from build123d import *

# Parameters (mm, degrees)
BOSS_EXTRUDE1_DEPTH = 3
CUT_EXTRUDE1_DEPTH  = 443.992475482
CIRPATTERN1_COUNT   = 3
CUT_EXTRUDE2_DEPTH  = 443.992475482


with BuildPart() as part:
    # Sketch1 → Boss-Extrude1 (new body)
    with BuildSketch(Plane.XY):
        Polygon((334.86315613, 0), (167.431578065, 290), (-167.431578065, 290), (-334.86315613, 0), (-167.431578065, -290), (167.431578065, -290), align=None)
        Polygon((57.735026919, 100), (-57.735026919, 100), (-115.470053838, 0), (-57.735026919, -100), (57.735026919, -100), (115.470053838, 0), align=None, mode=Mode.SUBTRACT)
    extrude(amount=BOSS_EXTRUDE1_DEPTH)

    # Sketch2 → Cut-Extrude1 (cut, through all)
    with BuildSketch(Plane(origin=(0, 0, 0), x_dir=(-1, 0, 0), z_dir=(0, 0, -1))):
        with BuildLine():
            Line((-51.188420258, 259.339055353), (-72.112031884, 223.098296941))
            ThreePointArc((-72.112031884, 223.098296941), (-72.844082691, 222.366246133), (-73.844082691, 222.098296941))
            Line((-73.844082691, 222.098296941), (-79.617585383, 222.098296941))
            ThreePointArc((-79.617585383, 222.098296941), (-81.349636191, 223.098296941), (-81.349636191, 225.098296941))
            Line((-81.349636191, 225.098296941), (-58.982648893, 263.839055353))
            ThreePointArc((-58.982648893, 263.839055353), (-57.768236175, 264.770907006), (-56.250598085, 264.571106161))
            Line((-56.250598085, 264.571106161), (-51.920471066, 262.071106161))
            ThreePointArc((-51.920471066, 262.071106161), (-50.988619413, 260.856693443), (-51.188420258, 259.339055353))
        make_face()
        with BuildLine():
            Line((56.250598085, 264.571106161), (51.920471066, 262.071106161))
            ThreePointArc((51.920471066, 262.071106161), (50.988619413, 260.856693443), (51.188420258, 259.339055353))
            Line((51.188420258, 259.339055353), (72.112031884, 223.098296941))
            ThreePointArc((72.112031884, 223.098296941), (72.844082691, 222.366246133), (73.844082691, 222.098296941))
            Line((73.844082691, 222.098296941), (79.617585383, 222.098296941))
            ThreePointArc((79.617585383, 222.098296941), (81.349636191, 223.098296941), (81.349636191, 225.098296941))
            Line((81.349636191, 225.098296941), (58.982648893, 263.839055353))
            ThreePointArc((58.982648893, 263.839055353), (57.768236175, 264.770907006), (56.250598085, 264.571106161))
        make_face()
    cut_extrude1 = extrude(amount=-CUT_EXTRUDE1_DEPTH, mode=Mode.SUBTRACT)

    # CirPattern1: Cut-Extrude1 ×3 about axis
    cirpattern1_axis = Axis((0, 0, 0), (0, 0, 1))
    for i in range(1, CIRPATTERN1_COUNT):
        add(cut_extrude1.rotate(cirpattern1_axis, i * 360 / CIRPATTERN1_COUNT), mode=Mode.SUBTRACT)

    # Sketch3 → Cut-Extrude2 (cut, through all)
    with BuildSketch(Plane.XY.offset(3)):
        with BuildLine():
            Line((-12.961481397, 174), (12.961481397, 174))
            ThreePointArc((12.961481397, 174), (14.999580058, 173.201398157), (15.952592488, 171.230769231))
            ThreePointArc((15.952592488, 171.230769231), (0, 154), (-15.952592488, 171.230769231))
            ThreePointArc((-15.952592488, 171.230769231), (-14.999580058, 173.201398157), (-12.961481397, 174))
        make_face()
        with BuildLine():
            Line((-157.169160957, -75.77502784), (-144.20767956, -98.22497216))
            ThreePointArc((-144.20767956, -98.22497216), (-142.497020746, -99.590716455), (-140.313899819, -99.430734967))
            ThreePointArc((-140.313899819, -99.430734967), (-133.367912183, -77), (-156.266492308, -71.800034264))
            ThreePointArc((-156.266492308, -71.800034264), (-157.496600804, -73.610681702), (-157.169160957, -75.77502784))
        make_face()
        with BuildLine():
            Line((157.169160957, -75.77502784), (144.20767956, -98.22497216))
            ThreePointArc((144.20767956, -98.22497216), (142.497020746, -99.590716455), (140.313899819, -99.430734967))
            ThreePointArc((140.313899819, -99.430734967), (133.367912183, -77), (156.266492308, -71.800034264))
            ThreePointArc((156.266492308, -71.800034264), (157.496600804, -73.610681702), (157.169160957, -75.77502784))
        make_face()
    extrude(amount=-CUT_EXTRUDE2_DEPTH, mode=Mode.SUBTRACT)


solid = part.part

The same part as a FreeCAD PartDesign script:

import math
import FreeCAD as App
import Part
import Sketcher
Q = App.Units.Quantity

doc = App.newDocument("Part")
body = doc.addObject("PartDesign::Body", "Body")

# Sketch on XY plane
sketch1 = body.newObject("Sketcher::SketchObject", "Sketch")
sketch1.AttachmentSupport = (doc.getObject("XY_Plane"), [""])
sketch1.MapMode = "FlatFace"
sketch1.addGeometry([
    Part.LineSegment(App.Vector(335, 0, 0), App.Vector(167, 290, 0)),  # 0
    Part.LineSegment(App.Vector(167, 290, 0), App.Vector(-167, 290, 0)),  # 1
    Part.LineSegment(App.Vector(-167, 290, 0), App.Vector(-335, 0, 0)),  # 2
    Part.LineSegment(App.Vector(-335, 0, 0), App.Vector(-167, -290, 0)),  # 3
    Part.LineSegment(App.Vector(-167, -290, 0), App.Vector(167, -290, 0)),  # 4
    Part.LineSegment(App.Vector(167, -290, 0), App.Vector(335, 0, 0)),  # 5
    Part.LineSegment(App.Vector(-58, 100, 0), App.Vector(58, 100, 0)),  # 6
    Part.LineSegment(App.Vector(58, 100, 0), App.Vector(115, 0, 0)),  # 7
    Part.LineSegment(App.Vector(115, 0, 0), App.Vector(58, -100, 0)),  # 8
    Part.LineSegment(App.Vector(58, -100, 0), App.Vector(-58, -100, 0)),  # 9
    Part.LineSegment(App.Vector(-58, -100, 0), App.Vector(-115, 0, 0)),  # 10
    Part.LineSegment(App.Vector(-115, 0, 0), App.Vector(-58, 100, 0)),  # 11
], False)
sketch1.addConstraint([
    Sketcher.Constraint("Coincident", 0, 2, 1, 1),
    Sketcher.Constraint("Coincident", 1, 2, 2, 1),
    Sketcher.Constraint("Coincident", 2, 2, 3, 1),
    Sketcher.Constraint("Coincident", 3, 2, 4, 1),
    Sketcher.Constraint("Coincident", 4, 2, 5, 1),
    Sketcher.Constraint("Coincident", 5, 2, 0, 1),
    Sketcher.Constraint("Coincident", 6, 2, 7, 1),
    Sketcher.Constraint("Coincident", 7, 2, 8, 1),
    Sketcher.Constraint("Coincident", 8, 2, 9, 1),
    Sketcher.Constraint("Coincident", 9, 2, 10, 1),
    Sketcher.Constraint("Coincident", 10, 2, 11, 1),
    Sketcher.Constraint("Coincident", 11, 2, 6, 1),
    Sketcher.Constraint("Horizontal", 1),
    Sketcher.Constraint("Horizontal", 4),
    Sketcher.Constraint("Horizontal", 6),
    Sketcher.Constraint("Horizontal", 9),
    Sketcher.Constraint("Symmetric", 0, 2, 3, 2, -1, 1),
    Sketcher.Constraint("Symmetric", 2, 2, 5, 2, -1, 1),
    Sketcher.Constraint("Symmetric", 6, 2, 9, 2, -1, 1),
    Sketcher.Constraint("Symmetric", 7, 2, 10, 2, -1, 1),
    Sketcher.Constraint("PointOnObject", 2, 2, -1),
    Sketcher.Constraint("PointOnObject", 7, 2, -1),
    Sketcher.Constraint("Parallel", 2, 5),
    Sketcher.Constraint("Parallel", 3, 7),
    Sketcher.Constraint("Parallel", 5, 8),
    Sketcher.Constraint("Parallel", 8, 11),
    Sketcher.Constraint("Vertical", 1, 2, 3, 2),
    Sketcher.Constraint("Angle", 0, Q("120 deg")),
    Sketcher.Constraint("DistanceY", -1, 1, 0, 2, Q("290 mm")),
    Sketcher.Constraint("DistanceY", -1, 1, 6, 2, Q("100 mm")),
    Sketcher.Constraint("DistanceX", 1, 2, 1, 1, Q("334.863156 mm")),
    Sketcher.Constraint("DistanceX", 6, 1, 6, 2, Q("115.470054 mm")),
])
pad1 = body.newObject("PartDesign::Pad", "Pad")
pad1.Profile = sketch1
pad1.Length = 3

# Sketch on XY plane
sketch2 = body.newObject("Sketcher::SketchObject", "Sketch001")
sketch2.AttachmentSupport = (doc.getObject("XY_Plane"), [""])
sketch2.MapMode = "FlatFace"
sketch2.addGeometry([
    Part.LineSegment(App.Vector(72.1, 223.1, 0), App.Vector(51.2, 259.3, 0)),  # 0
    Part.ArcOfCircle(Part.Circle(App.Vector(52.9, 260.3, 0), App.Vector(0, 0, 1), 2), math.radians(120), math.radians(210)),  # 1
    Part.LineSegment(App.Vector(51.9, 262.1, 0), App.Vector(56.3, 264.6, 0)),  # 2
    Part.ArcOfCircle(Part.Circle(App.Vector(57.3, 262.8, 0), App.Vector(0, 0, 1), 2), math.radians(30), math.radians(120)),  # 3
    Part.LineSegment(App.Vector(59, 263.8, 0), App.Vector(81.3, 225.1, 0)),  # 4
    Part.ArcOfCircle(Part.Circle(App.Vector(79.6, 224.1, 0), App.Vector(0, 0, 1), 2), math.radians(-90), math.radians(30)),  # 5
    Part.LineSegment(App.Vector(79.6, 222.1, 0), App.Vector(73.8, 222.1, 0)),  # 6
    Part.ArcOfCircle(Part.Circle(App.Vector(73.8, 224.1, 0), App.Vector(0, 0, 1), 2), math.radians(-150), math.radians(-90)),  # 7
    Part.LineSegment(App.Vector(-56.3, 264.6, 0), App.Vector(-51.9, 262.1, 0)),  # 8
    Part.ArcOfCircle(Part.Circle(App.Vector(-52.9, 260.3, 0), App.Vector(0, 0, 1), 2), math.radians(-30), math.radians(60)),  # 9
    Part.LineSegment(App.Vector(-51.2, 259.3, 0), App.Vector(-72.1, 223.1, 0)),  # 10
    Part.ArcOfCircle(Part.Circle(App.Vector(-73.8, 224.1, 0), App.Vector(0, 0, 1), 2), math.radians(-90), math.radians(-30)),  # 11
    Part.LineSegment(App.Vector(-73.8, 222.1, 0), App.Vector(-79.6, 222.1, 0)),  # 12
    Part.ArcOfCircle(Part.Circle(App.Vector(-79.6, 224.1, 0), App.Vector(0, 0, 1), 2), math.radians(150), math.radians(270)),  # 13
    Part.LineSegment(App.Vector(-81.3, 225.1, 0), App.Vector(-59, 263.8, 0)),  # 14
    Part.ArcOfCircle(Part.Circle(App.Vector(-57.3, 262.8, 0), App.Vector(0, 0, 1), 2), math.radians(60), math.radians(150)),  # 15
], False)
sketch2.addConstraint([
    Sketcher.Constraint("Tangent", 0, 2, 1, 2),
    Sketcher.Constraint("Tangent", 1, 1, 2, 1),
    Sketcher.Constraint("Tangent", 2, 2, 3, 2),
    Sketcher.Constraint("Tangent", 3, 1, 4, 1),
    Sketcher.Constraint("Tangent", 4, 2, 5, 2),
    Sketcher.Constraint("Tangent", 5, 1, 6, 1),
    Sketcher.Constraint("Tangent", 6, 2, 7, 2),
    Sketcher.Constraint("Tangent", 7, 1, 0, 1),
    Sketcher.Constraint("Tangent", 8, 2, 9, 2),
    Sketcher.Constraint("Tangent", 9, 1, 10, 1),
    Sketcher.Constraint("Tangent", 10, 2, 11, 2),
    Sketcher.Constraint("Tangent", 11, 1, 12, 1),
    Sketcher.Constraint("Tangent", 12, 2, 13, 2),
    Sketcher.Constraint("Tangent", 13, 1, 14, 1),
    Sketcher.Constraint("Tangent", 14, 2, 15, 2),
    Sketcher.Constraint("Tangent", 15, 1, 8, 1),
    Sketcher.Constraint("Horizontal", 6),
    Sketcher.Constraint("Horizontal", 12),
    Sketcher.Constraint("Equal", 1, 3),
    Sketcher.Constraint("Equal", 3, 5),
    Sketcher.Constraint("Equal", 5, 7),
    Sketcher.Constraint("Equal", 7, 9),
    Sketcher.Constraint("Equal", 9, 11),
    Sketcher.Constraint("Equal", 11, 13),
    Sketcher.Constraint("Equal", 13, 15),
    Sketcher.Constraint("Symmetric", 1, 3, 9, 3, -2),
    Sketcher.Constraint("Symmetric", 7, 3, 11, 3, -2),
    Sketcher.Constraint("Symmetric", 3, 3, 15, 3, -2),
    Sketcher.Constraint("Perpendicular", 0, 2),
    Sketcher.Constraint("Perpendicular", 2, 4),
    Sketcher.Constraint("Parallel", 10, 14),
    Sketcher.Constraint("Radius", 1, Q("2 mm")),
    Sketcher.Constraint("Angle", 0, Q("120 deg")),
    Sketcher.Constraint("Distance", 2, Q("5 mm")),
    Sketcher.Constraint("DistanceX", -1, 1, 3, 3, Q("57.250598 mm")),
    Sketcher.Constraint("DistanceX", -1, 1, 7, 1, Q("72.112032 mm")),
    Sketcher.Constraint("DistanceY", -1, 1, 1, 3, Q("260.339055 mm")),
])
pocket1 = body.newObject("PartDesign::Pocket", "Pocket")
pocket1.Profile = sketch2
pocket1.Type = "ThroughAll"
pocket1.Reversed = True
doc.recompute()

polarpattern = body.newObject("PartDesign::PolarPattern", "PolarPattern")
polarpattern.Originals = [pocket1]
polarpattern.Axis = (doc.getObject("Z_Axis"), [""])
polarpattern.Angle = 360
polarpattern.Occurrences = 3
body.Tip = polarpattern

# Sketch on XY plane
sketch3 = body.newObject("Sketcher::SketchObject", "Sketch002")
sketch3.AttachmentSupport = (doc.getObject("XY_Plane"), [""])
sketch3.MapMode = "FlatFace"
sketch3.AttachmentOffset = App.Placement(App.Vector(0, 0, 3), App.Rotation())
sketch3.addGeometry([
    Part.LineSegment(App.Vector(13, 174, 0), App.Vector(-13, 174, 0)),  # 0
    Part.ArcOfCircle(Part.Circle(App.Vector(-13, 171, 0), App.Vector(0, 0, 1), 3), math.radians(90), math.radians(176)),  # 1
    Part.ArcOfCircle(Part.Circle(App.Vector(0, 170, 0), App.Vector(0, 0, 1), 16), math.radians(176), math.radians(364)),  # 2
    Part.ArcOfCircle(Part.Circle(App.Vector(13, 171, 0), App.Vector(0, 0, 1), 3), math.radians(4), math.radians(90)),  # 3
    Part.LineSegment(App.Vector(-157.2, -75.8, 0), App.Vector(-144.2, -98.2, 0)),  # 4
    Part.ArcOfCircle(Part.Circle(App.Vector(-141.6, -96.7, 0), App.Vector(0, 0, 1), 3), math.radians(-150), math.radians(-64)),  # 5
    Part.ArcOfCircle(Part.Circle(App.Vector(-147.2, -85, 0), App.Vector(0, 0, 1), 16), math.radians(-64), math.radians(124)),  # 6
    Part.ArcOfCircle(Part.Circle(App.Vector(-154.6, -74.3, 0), App.Vector(0, 0, 1), 3), math.radians(124), math.radians(210)),  # 7
    Part.LineSegment(App.Vector(144.2, -98.2, 0), App.Vector(157.2, -75.8, 0)),  # 8
    Part.ArcOfCircle(Part.Circle(App.Vector(154.6, -74.3, 0), App.Vector(0, 0, 1), 3), math.radians(-30), math.radians(56)),  # 9
    Part.ArcOfCircle(Part.Circle(App.Vector(147.2, -85, 0), App.Vector(0, 0, 1), 16), math.radians(56), math.radians(244)),  # 10
    Part.ArcOfCircle(Part.Circle(App.Vector(141.6, -96.7, 0), App.Vector(0, 0, 1), 3), math.radians(-116), math.radians(-30)),  # 11
], False)
sketch3.addConstraint([
    Sketcher.Constraint("Tangent", 0, 2, 1, 1),
    Sketcher.Constraint("Tangent", 1, 2, 2, 1),
    Sketcher.Constraint("Tangent", 2, 2, 3, 1),
    Sketcher.Constraint("Tangent", 3, 2, 0, 1),
    Sketcher.Constraint("Tangent", 4, 2, 5, 1),
    Sketcher.Constraint("Tangent", 5, 2, 6, 1),
    Sketcher.Constraint("Tangent", 6, 2, 7, 1),
    Sketcher.Constraint("Tangent", 7, 2, 4, 1),
    Sketcher.Constraint("Tangent", 8, 2, 9, 1),
    Sketcher.Constraint("Tangent", 9, 2, 10, 1),
    Sketcher.Constraint("Tangent", 10, 2, 11, 1),
    Sketcher.Constraint("Tangent", 11, 2, 8, 1),
    Sketcher.Constraint("Horizontal", 0),
    Sketcher.Constraint("Equal", 1, 3),
    Sketcher.Constraint("Equal", 3, 5),
    Sketcher.Constraint("Equal", 2, 6),
    Sketcher.Constraint("Equal", 5, 7),
    Sketcher.Constraint("Equal", 7, 9),
    Sketcher.Constraint("Equal", 6, 10),
    Sketcher.Constraint("Equal", 9, 11),
    Sketcher.Constraint("Symmetric", 7, 3, 9, 3, -2),
    Sketcher.Constraint("Symmetric", 5, 3, 11, 3, -2),
    Sketcher.Constraint("PointOnObject", 2, 3, -2),
    Sketcher.Constraint("Radius", 1, Q("3 mm")),
    Sketcher.Constraint("Radius", 2, Q("16 mm")),
    Sketcher.Constraint("Angle", 4, Q("-60 deg")),
    Sketcher.Constraint("DistanceY", -1, 1, 1, 3, Q("171 mm")),
    Sketcher.Constraint("DistanceY", -1, 1, 2, 3, Q("170 mm")),
    Sketcher.Constraint("DistanceY", 6, 3, -1, 1, Q("85 mm")),
    Sketcher.Constraint("DistanceX", 4, 2, 10, 3, Q("291.431998 mm")),
    Sketcher.Constraint("DistanceX", 5, 2, -1, 1, Q("140.3139 mm")),
])
pocket2 = body.newObject("PartDesign::Pocket", "Pocket001")
pocket2.Profile = sketch3
pocket2.Type = "ThroughAll"

doc.recompute()
